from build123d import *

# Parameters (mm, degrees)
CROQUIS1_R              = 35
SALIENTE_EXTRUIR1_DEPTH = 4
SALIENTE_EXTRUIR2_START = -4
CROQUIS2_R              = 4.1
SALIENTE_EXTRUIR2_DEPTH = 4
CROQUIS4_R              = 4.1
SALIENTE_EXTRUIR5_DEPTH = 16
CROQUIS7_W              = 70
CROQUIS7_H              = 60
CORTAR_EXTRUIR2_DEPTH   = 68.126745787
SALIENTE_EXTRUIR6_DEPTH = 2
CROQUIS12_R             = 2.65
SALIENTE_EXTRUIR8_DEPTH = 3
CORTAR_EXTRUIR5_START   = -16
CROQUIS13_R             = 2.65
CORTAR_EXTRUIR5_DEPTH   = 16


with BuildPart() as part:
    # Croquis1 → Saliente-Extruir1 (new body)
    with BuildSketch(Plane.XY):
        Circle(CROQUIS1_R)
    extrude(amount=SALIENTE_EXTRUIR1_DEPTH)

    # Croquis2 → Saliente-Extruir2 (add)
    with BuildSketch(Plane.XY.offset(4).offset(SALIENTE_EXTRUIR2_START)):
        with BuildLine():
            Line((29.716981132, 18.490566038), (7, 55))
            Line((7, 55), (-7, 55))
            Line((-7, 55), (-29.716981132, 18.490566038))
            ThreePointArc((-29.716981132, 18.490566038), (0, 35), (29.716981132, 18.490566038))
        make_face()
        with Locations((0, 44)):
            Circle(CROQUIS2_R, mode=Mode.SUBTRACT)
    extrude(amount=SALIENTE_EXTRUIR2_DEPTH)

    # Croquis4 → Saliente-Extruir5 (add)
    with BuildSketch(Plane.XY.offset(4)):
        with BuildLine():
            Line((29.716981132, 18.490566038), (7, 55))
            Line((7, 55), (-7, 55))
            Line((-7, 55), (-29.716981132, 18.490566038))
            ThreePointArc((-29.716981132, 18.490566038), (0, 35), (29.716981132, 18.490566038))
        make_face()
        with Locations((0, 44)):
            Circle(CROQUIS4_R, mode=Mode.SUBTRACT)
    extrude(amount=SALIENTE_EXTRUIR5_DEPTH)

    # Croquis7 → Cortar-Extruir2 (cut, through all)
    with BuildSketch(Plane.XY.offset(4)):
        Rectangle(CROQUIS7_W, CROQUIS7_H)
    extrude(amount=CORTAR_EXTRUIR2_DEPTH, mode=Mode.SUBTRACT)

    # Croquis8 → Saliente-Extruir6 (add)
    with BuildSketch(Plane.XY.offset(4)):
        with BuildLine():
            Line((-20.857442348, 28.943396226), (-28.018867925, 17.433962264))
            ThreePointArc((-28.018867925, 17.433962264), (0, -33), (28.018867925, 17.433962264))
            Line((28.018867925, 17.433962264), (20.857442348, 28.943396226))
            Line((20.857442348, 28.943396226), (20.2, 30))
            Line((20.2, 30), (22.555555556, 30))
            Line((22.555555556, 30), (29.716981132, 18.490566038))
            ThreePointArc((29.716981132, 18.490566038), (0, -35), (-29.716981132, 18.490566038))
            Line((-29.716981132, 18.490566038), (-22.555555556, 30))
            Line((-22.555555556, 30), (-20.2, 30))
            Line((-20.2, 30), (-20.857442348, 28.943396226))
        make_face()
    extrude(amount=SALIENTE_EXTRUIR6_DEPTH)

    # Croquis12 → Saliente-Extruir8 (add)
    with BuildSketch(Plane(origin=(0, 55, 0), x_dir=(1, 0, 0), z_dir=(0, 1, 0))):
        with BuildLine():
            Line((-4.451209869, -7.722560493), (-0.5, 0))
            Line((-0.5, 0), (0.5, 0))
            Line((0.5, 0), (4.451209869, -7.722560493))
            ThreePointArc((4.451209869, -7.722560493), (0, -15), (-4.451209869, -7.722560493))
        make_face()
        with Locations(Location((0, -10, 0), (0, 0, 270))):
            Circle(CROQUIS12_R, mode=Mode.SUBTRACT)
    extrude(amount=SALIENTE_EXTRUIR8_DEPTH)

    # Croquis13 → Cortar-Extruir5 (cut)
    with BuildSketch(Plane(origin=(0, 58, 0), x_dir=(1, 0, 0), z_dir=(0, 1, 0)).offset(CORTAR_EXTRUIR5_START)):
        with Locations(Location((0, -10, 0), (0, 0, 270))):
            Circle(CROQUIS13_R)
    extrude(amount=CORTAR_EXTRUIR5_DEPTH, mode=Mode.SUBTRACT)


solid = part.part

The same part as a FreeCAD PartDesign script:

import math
import FreeCAD as App
import Part
import Sketcher
from FreeCAD import Vector
Q = App.Units.Quantity


def add_polygon(sketch, points):
    """Adds a closed chain of lines whose ends are joined by coincident constraints."""
    first, n = sketch.GeometryCount, len(points)
    for a, b in zip(points, points[1:] + points[:1]):
        sketch.addGeometry(Part.LineSegment(App.Vector(*a, 0), App.Vector(*b, 0)), False)
    for i in range(n):
        sketch.addConstraint(Sketcher.Constraint("Coincident", first + i, 2, first + (i + 1) % n, 1))

doc = App.newDocument("Part")
body = doc.addObject("PartDesign::Body", "Body")

# Sketch on XY plane
sketch1 = body.newObject("Sketcher::SketchObject", "Sketch")
sketch1.AttachmentSupport = (doc.getObject("XY_Plane"), [""])
sketch1.MapMode = "FlatFace"
sketch1.addGeometry(Part.Circle(Vector(0, 0, 0), Vector(0, 0, 1), 35), False)
sketch1.addConstraint([
    Sketcher.Constraint("Coincident", 0, 3, -1, 1),
    Sketcher.Constraint("Diameter", 0, Q("70 mm")),
])
pad1 = body.newObject("PartDesign::Pad", "Pad")
pad1.Profile = sketch1
pad1.Length = 4

# Sketch on XY plane
sketch2 = body.newObject("Sketcher::SketchObject", "Sketch001")
sketch2.AttachmentSupport = (doc.getObject("XY_Plane"), [""])
sketch2.MapMode = "FlatFace"
sketch2.addGeometry([
    Part.LineSegment(Vector(29.7, 18.5, 0), Vector(7, 55, 0)),  # 0
    Part.LineSegment(Vector(7, 55, 0), Vector(-7, 55, 0)),  # 1
    Part.LineSegment(Vector(-7, 55, 0), Vector(-29.7, 18.5, 0)),  # 2
    Part.ArcOfCircle(Part.Circle(Vector(0, 0, 0), Vector(0, 0, 1), 35), math.radians(32), math.radians(148)),  # 3
    Part.Circle(Vector(0, 44, 0), Vector(0, 0, 1), 4.1),  # 4
], False)
sketch2.addConstraint([
    Sketcher.Constraint("Coincident", 0, 2, 1, 1),
    Sketcher.Constraint("Coincident", 1, 2, 2, 1),
    Sketcher.Constraint("Tangent", 2, 2, 3, 2),
    Sketcher.Constraint("Tangent", 3, 1, 0, 1),
    Sketcher.Constraint("Horizontal", 1),
    Sketcher.Constraint("Coincident", 3, 3, -1, 1),
    Sketcher.Constraint("PointOnObject", 4, 3, -2),
    Sketcher.Constraint("Horizontal", 2, 2, 3, 1),
    Sketcher.Constraint("Radius", 3, Q("35 mm")),
    Sketcher.Constraint("Diameter", 4, Q("8.2 mm")),
    Sketcher.Constraint("DistanceX", 1, 2, 1, 1, Q("14 mm")),
    Sketcher.Constraint("Distance", 0, Q("43 mm")),
    Sketcher.Constraint("DistanceY", -1, 1, 4, 3, Q("44 mm")),
])
pad2 = body.newObject("PartDesign::Pad", "Pad001")
pad2.Profile = sketch2
pad2.Length = 4

# Sketch on XY plane
sketch3 = body.newObject("Sketcher::SketchObject", "Sketch002")
sketch3.AttachmentSupport = (doc.getObject("XY_Plane"), [""])
sketch3.MapMode = "FlatFace"
sketch3.AttachmentOffset = App.Placement(Vector(0, 0, 4), App.Rotation())
sketch3.addGeometry([
    Part.LineSegment(Vector(29.7, 18.5, 0), Vector(7, 55, 0)),  # 0
    Part.LineSegment(Vector(7, 55, 0), Vector(-7, 55, 0)),  # 1
    Part.LineSegment(Vector(-7, 55, 0), Vector(-29.7, 18.5, 0)),  # 2
    Part.ArcOfCircle(Part.Circle(Vector(0, 0, 0), Vector(0, 0, 1), 35), math.radians(32), math.radians(148)),  # 3
    Part.Circle(Vector(0, 44, 0), Vector(0, 0, 1), 4.1),  # 4
], False)
sketch3.addConstraint([
    Sketcher.Constraint("Coincident", 0, 2, 1, 1),
    Sketcher.Constraint("Coincident", 1, 2, 2, 1),
    Sketcher.Constraint("Tangent", 2, 2, 3, 2),
    Sketcher.Constraint("Tangent", 3, 1, 0, 1),
    Sketcher.Constraint("Horizontal", 1),
    Sketcher.Constraint("Coincident", 3, 3, -1, 1),
    Sketcher.Constraint("PointOnObject", 4, 3, -2),
    Sketcher.Constraint("Horizontal", 2, 2, 3, 1),
    Sketcher.Constraint("Radius", 3, Q("35 mm")),
    Sketcher.Constraint("Diameter", 4, Q("8.2 mm")),
    Sketcher.Constraint("DistanceX", 1, 2, 1, 1, Q("14 mm")),
    Sketcher.Constraint("Distance", 0, Q("43 mm")),
    Sketcher.Constraint("DistanceY", -1, 1, 4, 3, Q("44 mm")),
])
pad3 = body.newObject("PartDesign::Pad", "Pad002")
pad3.Profile = sketch3
pad3.Length = 16

# Sketch on XY plane
sketch4 = body.newObject("Sketcher::SketchObject", "Sketch003")
sketch4.AttachmentSupport = (doc.getObject("XY_Plane"), [""])
sketch4.MapMode = "FlatFace"
sketch4.AttachmentOffset = App.Placement(Vector(0, 0, 4), App.Rotation())
add_polygon(sketch4, [(-35, 30), (-35, -30), (35, -30), (35, 30)])  # lines 0-3
sketch4.addConstraint([
    Sketcher.Constraint("Vertical", 0),
    Sketcher.Constraint("Horizontal", 1),
    Sketcher.Constraint("Vertical", 2),
    Sketcher.Constraint("Horizontal", 3),
    Sketcher.Constraint("Symmetric", 0, 2, 2, 2, -1, 1),
    Sketcher.Constraint("DistanceX", 1, 1, 1, 2, Q("70 mm")),
    Sketcher.Constraint("DistanceY", 0, 2, 0, 1, Q("60 mm")),
])
pocket1 = body.newObject("PartDesign::Pocket", "Pocket")
pocket1.Profile = sketch4
pocket1.Type = "ThroughAll"
pocket1.Reversed = True

# Sketch on XY plane
sketch5 = body.newObject("Sketcher::SketchObject", "Sketch004")
sketch5.AttachmentSupport = (doc.getObject("XY_Plane"), [""])
sketch5.MapMode = "FlatFace"
sketch5.AttachmentOffset = App.Placement(Vector(0, 0, 4), App.Rotation())
sketch5.addGeometry([
    Part.LineSegment(Vector(-28, 17.4, 0), Vector(-20.9, 28.9, 0)),  # 0
    Part.LineSegment(Vector(-20.9, 28.9, 0), Vector(-20.2, 30, 0)),  # 1
    Part.LineSegment(Vector(-20.2, 30, 0), Vector(-22.6, 30, 0)),  # 2
    Part.LineSegment(Vector(-22.6, 30, 0), Vector(-29.7, 18.5, 0)),  # 3
    Part.ArcOfCircle(Part.Circle(Vector(0, 0, 0), Vector(0, 0, 1), 35), math.radians(148), math.radians(392)),  # 4
    Part.LineSegment(Vector(29.7, 18.5, 0), Vector(22.6, 30, 0)),  # 5
    Part.LineSegment(Vector(22.6, 30, 0), Vector(20.2, 30, 0)),  # 6
    Part.LineSegment(Vector(20.2, 30, 0), Vector(20.9, 28.9, 0)),  # 7
    Part.LineSegment(Vector(20.9, 28.9, 0), Vector(28, 17.4, 0)),  # 8
    Part.ArcOfCircle(Part.Circle(Vector(0, 0, 0), Vector(0, 0, 1), 33), math.radians(148), math.radians(392)),  # 9
], False)
sketch5.addConstraint([
    Sketcher.Constraint("Coincident", 0, 2, 1, 1),
    Sketcher.Constraint("Coincident", 1, 2, 2, 1),
    Sketcher.Constraint("Coincident", 2, 2, 3, 1),
    Sketcher.Constraint("Tangent", 3, 2, 4, 1),
    Sketcher.Constraint("Tangent", 4, 2, 5, 1),
    Sketcher.Constraint("Coincident", 5, 2, 6, 1),
    Sketcher.Constraint("Coincident", 6, 2, 7, 1),
    Sketcher.Constraint("Coincident", 7, 2, 8, 1),
    Sketcher.Constraint("Tangent", 8, 2, 9, 2),
    Sketcher.Constraint("Tangent", 9, 1, 0, 1),
    Sketcher.Constraint("Horizontal", 2),
    Sketcher.Constraint("Horizontal", 6),
    Sketcher.Constraint("Coincident", 4, 3, -1, 1),
    Sketcher.Constraint("Coincident", 9, 3, -1, 1),
    Sketcher.Constraint("Symmetric", 2, 2, 5, 2, -2),
    Sketcher.Constraint("Symmetric", 0, 2, 7, 2, -2),
    Sketcher.Constraint("Parallel", 0, 1),
    Sketcher.Constraint("Parallel", 1, 3),
    Sketcher.Constraint("Parallel", 5, 7),
    Sketcher.Constraint("Equal", 0, 3),
    Sketcher.Constraint("Radius", 4, Q("35 mm")),
    Sketcher.Constraint("Radius", 9, Q("33 mm")),
    Sketcher.Constraint("DistanceY", -1, 1, 1, 2, Q("30 mm")),
    Sketcher.Constraint("DistanceX", 1, 2, -1, 1, Q("20.2 mm")),
])
pad4 = body.newObject("PartDesign::Pad", "Pad003")
pad4.Profile = sketch5
pad4.Length = 2

# Sketch on XZ plane
sketch6 = body.newObject("Sketcher::SketchObject", "Sketch005")
sketch6.AttachmentSupport = (doc.getObject("XZ_Plane"), [""])
sketch6.MapMode = "FlatFace"
sketch6.AttachmentOffset = App.Placement(Vector(0, 0, -55), App.Rotation())
sketch6.addGeometry([
    Part.LineSegment(Vector(-0.5, 0, 0), Vector(-4.5, 7.7, 0)),  # 0
    Part.ArcOfCircle(Part.Circle(Vector(0, 10, 0), Vector(0, 0, 1), 5), math.radians(-27), math.radians(207)),  # 1
    Part.LineSegment(Vector(4.5, 7.7, 0), Vector(0.5, 0, 0)),  # 2
    Part.LineSegment(Vector(0.5, 0, 0), Vector(-0.5, 0, 0)),  # 3
    Part.Circle(Vector(0, 10, 0), Vector(0, 0, 1), 2.6),  # 4
], False)
sketch6.addConstraint([
    Sketcher.Constraint("Tangent", 0, 2, 1, 2),
    Sketcher.Constraint("Tangent", 1, 1, 2, 1),
    Sketcher.Constraint("Coincident", 2, 2, 3, 1),
    Sketcher.Constraint("Coincident", 3, 2, 0, 1),
    Sketcher.Constraint("Horizontal", 3),
    Sketcher.Constraint("Coincident", 4, 3, 1, 3),
    Sketcher.Constraint("Symmetric", 2, 2, 3, 2, -1, 1),
    Sketcher.Constraint("PointOnObject", 1, 3, -2),
    Sketcher.Constraint("Radius", 1, Q("5 mm")),
    Sketcher.Constraint("Diameter", 4, Q("5.3 mm")),
    Sketcher.Constraint("DistanceX", 3, 2, 3, 1, Q("1 mm")),
    Sketcher.Constraint("DistanceY", -1, 1, 1, 3, Q("10 mm")),
])
pad5 = body.newObject("PartDesign::Pad", "Pad004")
pad5.Profile = sketch6
pad5.Length = 3
pad5.Reversed = True

# Sketch on XZ plane
sketch7 = body.newObject("Sketcher::SketchObject", "Sketch006")
sketch7.AttachmentSupport = (doc.getObject("XZ_Plane"), [""])
sketch7.MapMode = "FlatFace"
sketch7.AttachmentOffset = App.Placement(Vector(0, 0, -42), App.Rotation())
sketch7.addGeometry(Part.Circle(Vector(0, 10, 0), Vector(0, 0, 1), 2.6), False)
sketch7.addConstraint([
    Sketcher.Constraint("PointOnObject", 0, 3, -2),
    Sketcher.Constraint("Diameter", 0, Q("5.3 mm")),
    Sketcher.Constraint("DistanceY", -1, 1, 0, 3, Q("10 mm")),
])
pocket2 = body.newObject("PartDesign::Pocket", "Pocket001")
pocket2.Profile = sketch7
pocket2.Length = 16

doc.recompute()
